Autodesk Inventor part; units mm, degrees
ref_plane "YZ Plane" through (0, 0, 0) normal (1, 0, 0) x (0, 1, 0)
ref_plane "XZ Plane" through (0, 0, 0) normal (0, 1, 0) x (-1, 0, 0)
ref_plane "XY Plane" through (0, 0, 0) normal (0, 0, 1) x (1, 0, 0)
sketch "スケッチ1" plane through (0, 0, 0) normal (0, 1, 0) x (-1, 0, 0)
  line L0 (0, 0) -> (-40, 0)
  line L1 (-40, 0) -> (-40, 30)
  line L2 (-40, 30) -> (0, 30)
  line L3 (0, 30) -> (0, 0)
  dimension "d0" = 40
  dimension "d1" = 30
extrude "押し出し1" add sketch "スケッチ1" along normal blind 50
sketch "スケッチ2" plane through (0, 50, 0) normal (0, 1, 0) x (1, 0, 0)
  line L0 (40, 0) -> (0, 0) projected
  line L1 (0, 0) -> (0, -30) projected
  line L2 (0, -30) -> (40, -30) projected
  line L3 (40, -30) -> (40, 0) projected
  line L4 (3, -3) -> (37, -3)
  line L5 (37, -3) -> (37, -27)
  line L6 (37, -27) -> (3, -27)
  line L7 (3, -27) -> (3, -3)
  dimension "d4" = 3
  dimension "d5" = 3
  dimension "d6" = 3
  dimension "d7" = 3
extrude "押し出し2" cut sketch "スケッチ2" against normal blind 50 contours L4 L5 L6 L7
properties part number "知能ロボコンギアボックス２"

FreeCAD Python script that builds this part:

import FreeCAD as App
import Part
import Sketcher

V = App.Vector

doc = App.newDocument("Part")
params = doc.addObject("Spreadsheet::Sheet", "Params")
for row, (alias, value) in enumerate([
    ("sketch1_width", "40 mm"),
    ("sketch1_height", "30 mm"),
    ("pad1_length", "50 mm"),
    ("sketch2_width", "34 mm"),
    ("sketch2_height", "24 mm"),
    ("pocket1_length", "50 mm"),
], start=1):
    params.set(f"A{row}", alias)
    params.set(f"B{row}", "=" + value)
    params.setAlias(f"B{row}", alias)

body = doc.addObject("PartDesign::Body", "Body")

# Sketch on XZ plane
sketch1 = body.newObject("Sketcher::SketchObject", "Sketch")
sketch1.AttachmentSupport = (doc.getObject("XZ_Plane"), [""])
sketch1.MapMode = "FlatFace"
sketch1.addGeometry(Part.LineSegment(V(40, 0, 0), V(0, 0, 0)), False)
sketch1.addGeometry(Part.LineSegment(V(0, 0, 0), V(0, 30, 0)), False)
sketch1.addGeometry(Part.LineSegment(V(0, 30, 0), V(40, 30, 0)), False)
sketch1.addGeometry(Part.LineSegment(V(40, 30, 0), V(40, 0, 0)), False)
sketch1.addConstraint(Sketcher.Constraint("Coincident", 0, 2, 1, 1))
sketch1.addConstraint(Sketcher.Constraint("Coincident", 1, 2, 2, 1))
sketch1.addConstraint(Sketcher.Constraint("Coincident", 2, 2, 3, 1))
sketch1.addConstraint(Sketcher.Constraint("Coincident", 3, 2, 0, 1))
sketch1.addConstraint(Sketcher.Constraint("Horizontal", 0))
sketch1.addConstraint(Sketcher.Constraint("Vertical", 1))
sketch1.addConstraint(Sketcher.Constraint("Horizontal", 2))
sketch1.addConstraint(Sketcher.Constraint("Vertical", 3))
sketch1.addConstraint(Sketcher.Constraint("Coincident", 0, 2, -1, 1))
sketch1.addConstraint(Sketcher.Constraint("DistanceX", 0, 2, 0, 1, 40.0))
sketch1.addConstraint(Sketcher.Constraint("DistanceY", 1, 1, 1, 2, 30.0))
sketch1.setExpression("Constraints[9]", "Params.sketch1_width")
sketch1.setExpression("Constraints[10]", "Params.sketch1_height")
pad1 = body.newObject("PartDesign::Pad", "Pad")
pad1.Profile = sketch1
pad1.setExpression("Length", "Params.pad1_length")
pad1.Reversed = True

# Sketch on XZ plane
sketch2 = body.newObject("Sketcher::SketchObject", "Sketch001")
sketch2.AttachmentSupport = (doc.getObject("XZ_Plane"), [""])
sketch2.MapMode = "FlatFace"
sketch2.AttachmentOffset = App.Placement(V(0, 0, -50), App.Rotation())
sketch2.addGeometry(Part.LineSegment(V(37, 3, 0), V(3, 3, 0)), False)
sketch2.addGeometry(Part.LineSegment(V(3, 3, 0), V(3, 27, 0)), False)
sketch2.addGeometry(Part.LineSegment(V(3, 27, 0), V(37, 27, 0)), False)
sketch2.addGeometry(Part.LineSegment(V(37, 27, 0), V(37, 3, 0)), False)
sketch2.addConstraint(Sketcher.Constraint("Coincident", 0, 2, 1, 1))
sketch2.addConstraint(Sketcher.Constraint("Coincident", 1, 2, 2, 1))
sketch2.addConstraint(Sketcher.Constraint("Coincident", 2, 2, 3, 1))
sketch2.addConstraint(Sketcher.Constraint("Coincident", 3, 2, 0, 1))
sketch2.addConstraint(Sketcher.Constraint("Horizontal", 0))
sketch2.addConstraint(Sketcher.Constraint("Vertical", 1))
sketch2.addConstraint(Sketcher.Constraint("Horizontal", 2))
sketch2.addConstraint(Sketcher.Constraint("Vertical", 3))
sketch2.addConstraint(Sketcher.Constraint("DistanceX", -1, 1, 0, 2, 3.0))
sketch2.addConstraint(Sketcher.Constraint("DistanceY", -1, 1, 0, 2, 3.0))
sketch2.addConstraint(Sketcher.Constraint("DistanceX", 0, 2, 0, 1, 34.0))
sketch2.addConstraint(Sketcher.Constraint("DistanceY", 1, 1, 1, 2, 24.0))
sketch2.setExpression("Constraints[10]", "Params.sketch2_width")
sketch2.setExpression("Constraints[11]", "Params.sketch2_height")
pocket1 = body.newObject("PartDesign::Pocket", "Pocket")
pocket1.Profile = sketch2
pocket1.setExpression("Length", "Params.pocket1_length")
pocket1.Reversed = True

doc.recompute()
